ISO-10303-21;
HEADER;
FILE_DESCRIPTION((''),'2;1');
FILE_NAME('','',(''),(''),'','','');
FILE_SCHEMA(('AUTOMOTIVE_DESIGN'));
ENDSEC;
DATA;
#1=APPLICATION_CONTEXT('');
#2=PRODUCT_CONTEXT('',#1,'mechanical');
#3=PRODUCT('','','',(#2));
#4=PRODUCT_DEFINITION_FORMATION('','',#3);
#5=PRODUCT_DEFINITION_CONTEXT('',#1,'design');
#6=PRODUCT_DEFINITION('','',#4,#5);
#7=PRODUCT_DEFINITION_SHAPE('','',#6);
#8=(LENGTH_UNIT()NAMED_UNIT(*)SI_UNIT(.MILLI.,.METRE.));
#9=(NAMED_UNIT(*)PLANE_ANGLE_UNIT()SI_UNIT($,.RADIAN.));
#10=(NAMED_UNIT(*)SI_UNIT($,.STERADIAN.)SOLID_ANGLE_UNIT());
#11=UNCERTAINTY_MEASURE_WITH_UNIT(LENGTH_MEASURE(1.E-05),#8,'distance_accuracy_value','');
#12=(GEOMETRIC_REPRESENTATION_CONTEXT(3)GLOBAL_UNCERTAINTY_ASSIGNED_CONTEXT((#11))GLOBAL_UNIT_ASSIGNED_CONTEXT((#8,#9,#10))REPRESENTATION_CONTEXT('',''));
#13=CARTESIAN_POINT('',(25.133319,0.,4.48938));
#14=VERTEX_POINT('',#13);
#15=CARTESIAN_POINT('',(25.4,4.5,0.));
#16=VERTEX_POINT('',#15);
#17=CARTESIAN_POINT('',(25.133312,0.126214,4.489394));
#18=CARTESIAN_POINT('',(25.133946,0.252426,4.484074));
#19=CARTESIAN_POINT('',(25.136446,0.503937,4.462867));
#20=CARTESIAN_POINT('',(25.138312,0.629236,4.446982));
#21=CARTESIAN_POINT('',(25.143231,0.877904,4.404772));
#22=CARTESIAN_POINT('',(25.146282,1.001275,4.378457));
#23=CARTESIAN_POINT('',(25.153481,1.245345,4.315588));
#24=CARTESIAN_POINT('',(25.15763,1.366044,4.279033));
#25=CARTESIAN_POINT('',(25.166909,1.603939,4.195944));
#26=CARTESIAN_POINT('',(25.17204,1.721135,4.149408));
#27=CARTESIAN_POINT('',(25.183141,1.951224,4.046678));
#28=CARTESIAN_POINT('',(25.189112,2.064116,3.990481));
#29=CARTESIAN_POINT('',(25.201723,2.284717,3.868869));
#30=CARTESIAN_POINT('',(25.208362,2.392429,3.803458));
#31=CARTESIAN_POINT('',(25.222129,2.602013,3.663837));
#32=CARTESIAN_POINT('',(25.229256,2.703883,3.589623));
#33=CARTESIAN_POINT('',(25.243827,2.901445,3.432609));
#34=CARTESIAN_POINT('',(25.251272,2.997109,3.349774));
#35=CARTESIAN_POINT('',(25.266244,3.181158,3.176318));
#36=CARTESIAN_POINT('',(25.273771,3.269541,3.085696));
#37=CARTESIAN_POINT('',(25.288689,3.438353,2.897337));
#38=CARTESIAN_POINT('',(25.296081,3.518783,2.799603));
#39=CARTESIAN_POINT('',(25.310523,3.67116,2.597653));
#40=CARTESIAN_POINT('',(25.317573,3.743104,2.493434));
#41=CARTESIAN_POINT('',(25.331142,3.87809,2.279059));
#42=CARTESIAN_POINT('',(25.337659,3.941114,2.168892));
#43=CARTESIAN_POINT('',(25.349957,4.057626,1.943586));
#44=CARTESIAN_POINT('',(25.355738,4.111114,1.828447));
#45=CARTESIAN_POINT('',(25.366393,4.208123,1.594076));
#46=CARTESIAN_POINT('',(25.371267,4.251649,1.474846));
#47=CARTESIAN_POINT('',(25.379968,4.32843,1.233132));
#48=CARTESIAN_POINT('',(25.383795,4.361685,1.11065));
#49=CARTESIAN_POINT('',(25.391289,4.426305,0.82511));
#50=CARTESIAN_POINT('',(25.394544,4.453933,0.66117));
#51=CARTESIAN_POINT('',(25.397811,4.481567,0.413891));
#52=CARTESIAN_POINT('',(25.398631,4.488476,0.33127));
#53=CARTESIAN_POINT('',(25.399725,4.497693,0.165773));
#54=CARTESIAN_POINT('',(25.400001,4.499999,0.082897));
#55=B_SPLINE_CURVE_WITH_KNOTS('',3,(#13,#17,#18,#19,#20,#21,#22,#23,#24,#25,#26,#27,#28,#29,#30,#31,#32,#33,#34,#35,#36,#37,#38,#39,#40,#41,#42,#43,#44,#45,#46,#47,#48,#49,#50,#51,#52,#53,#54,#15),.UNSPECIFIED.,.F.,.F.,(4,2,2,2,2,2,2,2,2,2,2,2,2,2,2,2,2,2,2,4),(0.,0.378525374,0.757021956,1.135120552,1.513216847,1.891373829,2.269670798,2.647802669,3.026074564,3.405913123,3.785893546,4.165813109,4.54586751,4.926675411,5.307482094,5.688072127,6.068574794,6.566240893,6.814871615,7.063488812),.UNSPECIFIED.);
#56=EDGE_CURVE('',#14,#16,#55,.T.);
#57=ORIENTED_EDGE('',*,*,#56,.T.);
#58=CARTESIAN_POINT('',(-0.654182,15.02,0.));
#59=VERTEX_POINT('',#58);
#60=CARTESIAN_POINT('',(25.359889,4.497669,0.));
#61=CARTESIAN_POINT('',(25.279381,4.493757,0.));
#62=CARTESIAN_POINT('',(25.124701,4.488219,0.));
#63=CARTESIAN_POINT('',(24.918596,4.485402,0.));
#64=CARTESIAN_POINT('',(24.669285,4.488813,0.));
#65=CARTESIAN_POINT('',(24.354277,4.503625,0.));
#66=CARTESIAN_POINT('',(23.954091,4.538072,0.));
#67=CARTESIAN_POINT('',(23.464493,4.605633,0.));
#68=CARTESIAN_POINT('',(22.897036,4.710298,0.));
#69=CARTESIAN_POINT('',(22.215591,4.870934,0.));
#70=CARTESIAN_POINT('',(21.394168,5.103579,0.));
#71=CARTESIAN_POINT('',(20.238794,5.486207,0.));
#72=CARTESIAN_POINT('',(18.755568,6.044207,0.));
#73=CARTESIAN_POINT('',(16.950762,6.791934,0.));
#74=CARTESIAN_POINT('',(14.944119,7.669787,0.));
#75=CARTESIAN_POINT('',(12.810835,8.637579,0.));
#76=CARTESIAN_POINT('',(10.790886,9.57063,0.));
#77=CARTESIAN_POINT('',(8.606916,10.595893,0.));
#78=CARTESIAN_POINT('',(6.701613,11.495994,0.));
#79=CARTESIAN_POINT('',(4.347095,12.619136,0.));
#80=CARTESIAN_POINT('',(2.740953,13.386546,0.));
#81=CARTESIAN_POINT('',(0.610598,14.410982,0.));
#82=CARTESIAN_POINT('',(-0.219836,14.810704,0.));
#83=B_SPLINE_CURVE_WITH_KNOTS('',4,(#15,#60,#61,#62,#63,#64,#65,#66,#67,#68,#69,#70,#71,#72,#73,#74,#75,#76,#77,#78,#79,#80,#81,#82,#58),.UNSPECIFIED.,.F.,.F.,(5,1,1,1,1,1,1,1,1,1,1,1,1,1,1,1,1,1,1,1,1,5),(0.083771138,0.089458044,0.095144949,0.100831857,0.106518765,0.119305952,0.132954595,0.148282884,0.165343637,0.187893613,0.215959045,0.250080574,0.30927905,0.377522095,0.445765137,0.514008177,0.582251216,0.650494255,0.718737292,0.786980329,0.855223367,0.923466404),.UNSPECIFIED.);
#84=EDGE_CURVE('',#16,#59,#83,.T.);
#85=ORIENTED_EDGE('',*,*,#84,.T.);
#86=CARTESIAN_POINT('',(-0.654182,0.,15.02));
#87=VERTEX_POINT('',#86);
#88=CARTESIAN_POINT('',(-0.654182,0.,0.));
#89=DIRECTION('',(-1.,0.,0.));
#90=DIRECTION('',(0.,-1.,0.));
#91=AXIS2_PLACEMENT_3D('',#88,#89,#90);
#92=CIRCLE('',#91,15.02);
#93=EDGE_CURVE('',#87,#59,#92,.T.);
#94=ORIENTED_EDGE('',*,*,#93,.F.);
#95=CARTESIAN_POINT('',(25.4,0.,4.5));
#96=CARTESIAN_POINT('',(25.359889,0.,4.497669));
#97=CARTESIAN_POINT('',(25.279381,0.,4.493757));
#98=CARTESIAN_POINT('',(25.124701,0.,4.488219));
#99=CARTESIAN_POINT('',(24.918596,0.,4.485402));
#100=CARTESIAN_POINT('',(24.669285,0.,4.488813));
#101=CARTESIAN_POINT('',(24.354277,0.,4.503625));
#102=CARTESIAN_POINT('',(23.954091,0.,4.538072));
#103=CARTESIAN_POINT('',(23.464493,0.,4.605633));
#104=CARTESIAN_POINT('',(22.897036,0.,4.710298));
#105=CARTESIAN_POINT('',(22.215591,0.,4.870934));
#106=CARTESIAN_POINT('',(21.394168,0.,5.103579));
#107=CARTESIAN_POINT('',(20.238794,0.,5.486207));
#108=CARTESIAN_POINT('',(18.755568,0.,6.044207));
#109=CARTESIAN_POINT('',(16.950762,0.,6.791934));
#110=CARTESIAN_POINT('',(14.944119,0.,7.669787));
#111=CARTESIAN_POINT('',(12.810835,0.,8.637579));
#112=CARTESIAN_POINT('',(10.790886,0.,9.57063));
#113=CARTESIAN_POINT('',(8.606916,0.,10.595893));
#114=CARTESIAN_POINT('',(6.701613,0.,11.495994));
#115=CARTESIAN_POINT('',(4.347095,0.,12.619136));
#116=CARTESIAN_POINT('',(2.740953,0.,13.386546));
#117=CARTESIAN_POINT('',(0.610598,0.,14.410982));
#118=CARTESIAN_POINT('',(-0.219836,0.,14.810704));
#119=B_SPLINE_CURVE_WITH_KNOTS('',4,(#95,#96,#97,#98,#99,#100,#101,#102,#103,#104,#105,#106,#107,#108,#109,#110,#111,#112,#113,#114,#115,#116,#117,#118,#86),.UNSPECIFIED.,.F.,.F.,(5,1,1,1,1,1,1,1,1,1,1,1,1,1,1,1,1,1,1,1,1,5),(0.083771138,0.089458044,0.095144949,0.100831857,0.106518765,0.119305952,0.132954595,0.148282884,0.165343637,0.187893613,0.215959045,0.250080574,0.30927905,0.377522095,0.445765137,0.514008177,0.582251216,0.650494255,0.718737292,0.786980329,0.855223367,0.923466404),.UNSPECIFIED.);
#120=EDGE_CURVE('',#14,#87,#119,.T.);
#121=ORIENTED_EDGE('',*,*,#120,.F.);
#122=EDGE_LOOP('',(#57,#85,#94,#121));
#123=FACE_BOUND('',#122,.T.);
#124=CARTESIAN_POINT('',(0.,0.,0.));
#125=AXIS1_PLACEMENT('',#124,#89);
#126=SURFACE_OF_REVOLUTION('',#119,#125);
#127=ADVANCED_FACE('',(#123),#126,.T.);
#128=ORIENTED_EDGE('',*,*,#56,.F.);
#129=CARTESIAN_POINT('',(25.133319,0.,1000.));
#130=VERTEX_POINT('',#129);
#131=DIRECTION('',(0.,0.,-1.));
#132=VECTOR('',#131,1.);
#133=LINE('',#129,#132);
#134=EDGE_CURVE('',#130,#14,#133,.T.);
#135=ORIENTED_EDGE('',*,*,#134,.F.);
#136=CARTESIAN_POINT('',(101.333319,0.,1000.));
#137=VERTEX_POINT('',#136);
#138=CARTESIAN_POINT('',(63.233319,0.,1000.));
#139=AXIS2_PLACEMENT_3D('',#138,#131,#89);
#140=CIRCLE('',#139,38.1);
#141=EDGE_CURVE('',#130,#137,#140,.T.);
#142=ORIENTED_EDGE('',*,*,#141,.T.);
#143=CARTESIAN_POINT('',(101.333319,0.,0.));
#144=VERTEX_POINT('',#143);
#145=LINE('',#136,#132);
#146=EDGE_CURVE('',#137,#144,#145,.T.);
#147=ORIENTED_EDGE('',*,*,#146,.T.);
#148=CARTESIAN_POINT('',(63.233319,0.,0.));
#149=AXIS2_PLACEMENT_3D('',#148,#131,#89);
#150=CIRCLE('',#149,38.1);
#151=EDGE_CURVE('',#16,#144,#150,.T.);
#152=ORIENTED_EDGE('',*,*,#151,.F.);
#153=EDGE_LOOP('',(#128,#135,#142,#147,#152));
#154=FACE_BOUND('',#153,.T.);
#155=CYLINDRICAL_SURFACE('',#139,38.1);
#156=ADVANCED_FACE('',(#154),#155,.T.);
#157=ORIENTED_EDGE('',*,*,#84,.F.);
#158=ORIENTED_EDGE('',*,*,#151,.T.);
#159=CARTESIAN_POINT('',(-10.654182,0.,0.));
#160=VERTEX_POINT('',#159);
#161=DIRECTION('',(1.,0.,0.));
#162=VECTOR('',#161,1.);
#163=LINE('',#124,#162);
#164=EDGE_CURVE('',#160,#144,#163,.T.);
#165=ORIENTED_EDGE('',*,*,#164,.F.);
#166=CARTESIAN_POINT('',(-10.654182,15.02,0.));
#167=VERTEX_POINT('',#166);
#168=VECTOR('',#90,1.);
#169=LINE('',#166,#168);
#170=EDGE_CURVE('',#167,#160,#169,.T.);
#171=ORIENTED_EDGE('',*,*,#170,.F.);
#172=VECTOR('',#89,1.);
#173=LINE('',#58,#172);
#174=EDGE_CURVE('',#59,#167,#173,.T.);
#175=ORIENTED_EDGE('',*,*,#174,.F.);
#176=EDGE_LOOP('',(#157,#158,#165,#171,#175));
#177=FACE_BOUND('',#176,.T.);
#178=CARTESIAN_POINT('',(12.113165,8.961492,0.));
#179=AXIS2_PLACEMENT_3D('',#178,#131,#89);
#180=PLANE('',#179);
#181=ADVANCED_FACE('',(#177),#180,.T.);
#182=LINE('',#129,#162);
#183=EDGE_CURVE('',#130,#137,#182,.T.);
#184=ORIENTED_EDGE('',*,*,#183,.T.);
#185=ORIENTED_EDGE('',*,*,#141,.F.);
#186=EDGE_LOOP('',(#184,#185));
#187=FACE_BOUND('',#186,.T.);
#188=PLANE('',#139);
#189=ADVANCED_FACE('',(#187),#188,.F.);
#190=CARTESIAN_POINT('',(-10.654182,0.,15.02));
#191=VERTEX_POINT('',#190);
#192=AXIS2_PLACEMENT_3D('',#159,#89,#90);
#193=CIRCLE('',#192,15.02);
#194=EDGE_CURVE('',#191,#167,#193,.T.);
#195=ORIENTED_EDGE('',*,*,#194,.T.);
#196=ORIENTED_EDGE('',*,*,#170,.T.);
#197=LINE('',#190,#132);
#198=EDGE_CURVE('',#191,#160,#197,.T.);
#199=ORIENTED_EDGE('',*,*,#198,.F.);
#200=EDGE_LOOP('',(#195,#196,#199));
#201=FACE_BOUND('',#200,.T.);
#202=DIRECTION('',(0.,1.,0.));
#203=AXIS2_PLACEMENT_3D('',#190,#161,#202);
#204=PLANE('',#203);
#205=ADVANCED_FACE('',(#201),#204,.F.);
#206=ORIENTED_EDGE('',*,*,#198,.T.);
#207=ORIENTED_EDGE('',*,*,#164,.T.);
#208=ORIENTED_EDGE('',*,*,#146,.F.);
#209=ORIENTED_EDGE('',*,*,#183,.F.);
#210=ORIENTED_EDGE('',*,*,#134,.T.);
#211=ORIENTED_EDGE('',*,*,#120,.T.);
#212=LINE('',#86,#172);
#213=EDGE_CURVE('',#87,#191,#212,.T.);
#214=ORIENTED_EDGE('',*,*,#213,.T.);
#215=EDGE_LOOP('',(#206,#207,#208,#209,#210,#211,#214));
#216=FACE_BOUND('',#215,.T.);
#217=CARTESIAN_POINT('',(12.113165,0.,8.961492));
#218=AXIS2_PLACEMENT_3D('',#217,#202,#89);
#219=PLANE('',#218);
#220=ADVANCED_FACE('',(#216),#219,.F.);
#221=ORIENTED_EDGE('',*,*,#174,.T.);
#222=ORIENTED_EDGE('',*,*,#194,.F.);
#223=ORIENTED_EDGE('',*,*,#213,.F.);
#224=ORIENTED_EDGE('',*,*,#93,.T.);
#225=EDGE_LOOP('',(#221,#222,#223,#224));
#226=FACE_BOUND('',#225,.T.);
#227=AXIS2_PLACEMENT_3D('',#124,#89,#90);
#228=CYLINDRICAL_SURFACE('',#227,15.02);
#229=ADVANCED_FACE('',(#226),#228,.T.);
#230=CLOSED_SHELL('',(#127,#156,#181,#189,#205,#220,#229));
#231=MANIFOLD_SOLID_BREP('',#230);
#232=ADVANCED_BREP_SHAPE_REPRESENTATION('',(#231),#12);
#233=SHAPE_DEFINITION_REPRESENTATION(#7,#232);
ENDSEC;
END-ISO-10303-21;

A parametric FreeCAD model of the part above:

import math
import FreeCAD as App
import Part
import Sketcher

V = App.Vector
Q = App.Units.Quantity

doc = App.newDocument("Part")
params = doc.addObject("Spreadsheet::Sheet", "Params")
for row, (alias, value) in enumerate([
    ("sketch1_width", "10 mm"),
    ("revolution_angle", "90 deg"),
    ("sketch2_radius", "38.1 mm"),
    ("pad1_length", "1000 mm"),
], start=1):
    params.set(f"A{row}", alias)
    params.set(f"B{row}", "=" + value)
    params.setAlias(f"B{row}", alias)

body = doc.addObject("PartDesign::Body", "Body")

# Sketch on XY plane
sketch1 = body.newObject("Sketcher::SketchObject", "Sketch")
sketch1.AttachmentSupport = (doc.getObject("XY_Plane"), [""])
sketch1.MapMode = "FlatFace"
sketch1.addGeometry(Part.LineSegment(V(-0.654182, 15.02, 0), V(-10.654182, 15.02, 0)), False)
sketch1.addGeometry(Part.LineSegment(V(-10.654182, 15.02, 0), V(-10.654182, 0, 0)), False)
sketch1.addGeometry(Part.LineSegment(V(-10.654182, 0, 0), V(35.4, 0, 0)), False)
sketch1.addGeometry(Part.LineSegment(V(35.4, 0, 0), V(35.4, 4.5, 0)), False)
sketch1.addGeometry(Part.LineSegment(V(35.4, 4.5, 0), V(25.4, 4.5, 0)), False)
sketch1.addGeometry(Part.BSplineCurve([V(-0.654182, 15.02, 0), V(-0.219836, 14.810704, 0), V(0.610598, 14.410982, 0), V(2.740953, 13.386546, 0), V(4.347095, 12.619136, 0), V(6.701613, 11.495994, 0), V(8.606916, 10.595893, 0), V(10.790886, 9.57063, 0), V(12.810835, 8.637579, 0), V(14.944119, 7.669787, 0), V(16.950762, 6.791934, 0), V(18.755568, 6.044207, 0), V(20.238794, 5.486207, 0), V(21.394168, 5.103579, 0), V(22.215591, 4.870934, 0), V(22.897036, 4.710298, 0), V(23.464493, 4.605633, 0), V(23.954091, 4.538072, 0), V(24.354277, 4.503625, 0), V(24.669285, 4.488813, 0), V(24.918596, 4.485402, 0), V(25.124701, 4.488219, 0), V(25.279381, 4.493757, 0), V(25.359889, 4.497669, 0), V(25.4, 4.5, 0)], [5, 1, 1, 1, 1, 1, 1, 1, 1, 1, 1, 1, 1, 1, 1, 1, 1, 1, 1, 1, 1, 5], [0.083771138, 0.152014176, 0.220257214, 0.288500251, 0.356743288, 0.424986327, 0.493229366, 0.561472406, 0.629715448, 0.697958493, 0.757156968, 0.791278497, 0.81934393, 0.841893906, 0.858954658, 0.874282948, 0.887931591, 0.900718778, 0.906405686, 0.912092593, 0.917779499, 0.923466404], False, 4, [1, 1, 1, 1, 1, 1, 1, 1, 1, 1, 1, 1, 1, 1, 1, 1, 1, 1, 1, 1, 1, 1, 1, 1, 1], False), False)
sketch1.addConstraint(Sketcher.Constraint("Block", 5))
sketch1.addConstraint(Sketcher.Constraint("Coincident", 0, 2, 1, 1))
sketch1.addConstraint(Sketcher.Constraint("Coincident", 1, 2, 2, 1))
sketch1.addConstraint(Sketcher.Constraint("Coincident", 2, 2, 3, 1))
sketch1.addConstraint(Sketcher.Constraint("Coincident", 3, 2, 4, 1))
sketch1.addConstraint(Sketcher.Constraint("Coincident", 4, 2, 5, 2))
sketch1.addConstraint(Sketcher.Constraint("Coincident", 5, 1, 0, 1))
sketch1.addConstraint(Sketcher.Constraint("Horizontal", 0))
sketch1.addConstraint(Sketcher.Constraint("Vertical", 1))
sketch1.addConstraint(Sketcher.Constraint("Horizontal", 2))
sketch1.addConstraint(Sketcher.Constraint("Vertical", 3))
sketch1.addConstraint(Sketcher.Constraint("Horizontal", 4))
sketch1.addConstraint(Sketcher.Constraint("PointOnObject", 1, 2, -1))
sketch1.addConstraint(Sketcher.Constraint("Equal", 0, 4))
sketch1.addConstraint(Sketcher.Constraint("DistanceX", 0, 2, 0, 1, Q("10 mm")))
sketch1.setExpression("Constraints[14]", "Params.sketch1_width")
revolution = body.newObject("PartDesign::Revolution", "Revolution")
revolution.Profile = sketch1
revolution.ReferenceAxis = (sketch1, ["H_Axis"])
revolution.setExpression("Angle", "Params.revolution_angle")

# Sketch on XY plane
sketch2 = body.newObject("Sketcher::SketchObject", "Sketch001")
sketch2.AttachmentSupport = (doc.getObject("XY_Plane"), [""])
sketch2.MapMode = "FlatFace"
sketch2.addGeometry(Part.LineSegment(V(25, 0, 0), V(101, 0, 0)), False)
sketch2.addGeometry(Part.ArcOfCircle(Part.Circle(V(63, 0, 0), V(0, 0, 1), 38), math.radians(0), math.radians(180)), False)
sketch2.addConstraint(Sketcher.Constraint("Coincident", 0, 1, 1, 2))
sketch2.addConstraint(Sketcher.Constraint("Coincident", 1, 1, 0, 2))
sketch2.addConstraint(Sketcher.Constraint("Horizontal", 0))
sketch2.addConstraint(Sketcher.Constraint("PointOnObject", 1, 3, -1))
sketch2.addConstraint(Sketcher.Constraint("PointOnObject", 0, 1, -1))
sketch2.addConstraint(Sketcher.Constraint("Radius", 1, Q("38.1 mm")))
sketch2.addConstraint(Sketcher.Constraint("DistanceX", -1, 1, 1, 3, Q("63.233319 mm")))
sketch2.setExpression("Constraints[5]", "Params.sketch2_radius")
pad1 = body.newObject("PartDesign::Pad", "Pad")
pad1.Profile = sketch2
pad1.setExpression("Length", "Params.pad1_length")

doc.recompute()
